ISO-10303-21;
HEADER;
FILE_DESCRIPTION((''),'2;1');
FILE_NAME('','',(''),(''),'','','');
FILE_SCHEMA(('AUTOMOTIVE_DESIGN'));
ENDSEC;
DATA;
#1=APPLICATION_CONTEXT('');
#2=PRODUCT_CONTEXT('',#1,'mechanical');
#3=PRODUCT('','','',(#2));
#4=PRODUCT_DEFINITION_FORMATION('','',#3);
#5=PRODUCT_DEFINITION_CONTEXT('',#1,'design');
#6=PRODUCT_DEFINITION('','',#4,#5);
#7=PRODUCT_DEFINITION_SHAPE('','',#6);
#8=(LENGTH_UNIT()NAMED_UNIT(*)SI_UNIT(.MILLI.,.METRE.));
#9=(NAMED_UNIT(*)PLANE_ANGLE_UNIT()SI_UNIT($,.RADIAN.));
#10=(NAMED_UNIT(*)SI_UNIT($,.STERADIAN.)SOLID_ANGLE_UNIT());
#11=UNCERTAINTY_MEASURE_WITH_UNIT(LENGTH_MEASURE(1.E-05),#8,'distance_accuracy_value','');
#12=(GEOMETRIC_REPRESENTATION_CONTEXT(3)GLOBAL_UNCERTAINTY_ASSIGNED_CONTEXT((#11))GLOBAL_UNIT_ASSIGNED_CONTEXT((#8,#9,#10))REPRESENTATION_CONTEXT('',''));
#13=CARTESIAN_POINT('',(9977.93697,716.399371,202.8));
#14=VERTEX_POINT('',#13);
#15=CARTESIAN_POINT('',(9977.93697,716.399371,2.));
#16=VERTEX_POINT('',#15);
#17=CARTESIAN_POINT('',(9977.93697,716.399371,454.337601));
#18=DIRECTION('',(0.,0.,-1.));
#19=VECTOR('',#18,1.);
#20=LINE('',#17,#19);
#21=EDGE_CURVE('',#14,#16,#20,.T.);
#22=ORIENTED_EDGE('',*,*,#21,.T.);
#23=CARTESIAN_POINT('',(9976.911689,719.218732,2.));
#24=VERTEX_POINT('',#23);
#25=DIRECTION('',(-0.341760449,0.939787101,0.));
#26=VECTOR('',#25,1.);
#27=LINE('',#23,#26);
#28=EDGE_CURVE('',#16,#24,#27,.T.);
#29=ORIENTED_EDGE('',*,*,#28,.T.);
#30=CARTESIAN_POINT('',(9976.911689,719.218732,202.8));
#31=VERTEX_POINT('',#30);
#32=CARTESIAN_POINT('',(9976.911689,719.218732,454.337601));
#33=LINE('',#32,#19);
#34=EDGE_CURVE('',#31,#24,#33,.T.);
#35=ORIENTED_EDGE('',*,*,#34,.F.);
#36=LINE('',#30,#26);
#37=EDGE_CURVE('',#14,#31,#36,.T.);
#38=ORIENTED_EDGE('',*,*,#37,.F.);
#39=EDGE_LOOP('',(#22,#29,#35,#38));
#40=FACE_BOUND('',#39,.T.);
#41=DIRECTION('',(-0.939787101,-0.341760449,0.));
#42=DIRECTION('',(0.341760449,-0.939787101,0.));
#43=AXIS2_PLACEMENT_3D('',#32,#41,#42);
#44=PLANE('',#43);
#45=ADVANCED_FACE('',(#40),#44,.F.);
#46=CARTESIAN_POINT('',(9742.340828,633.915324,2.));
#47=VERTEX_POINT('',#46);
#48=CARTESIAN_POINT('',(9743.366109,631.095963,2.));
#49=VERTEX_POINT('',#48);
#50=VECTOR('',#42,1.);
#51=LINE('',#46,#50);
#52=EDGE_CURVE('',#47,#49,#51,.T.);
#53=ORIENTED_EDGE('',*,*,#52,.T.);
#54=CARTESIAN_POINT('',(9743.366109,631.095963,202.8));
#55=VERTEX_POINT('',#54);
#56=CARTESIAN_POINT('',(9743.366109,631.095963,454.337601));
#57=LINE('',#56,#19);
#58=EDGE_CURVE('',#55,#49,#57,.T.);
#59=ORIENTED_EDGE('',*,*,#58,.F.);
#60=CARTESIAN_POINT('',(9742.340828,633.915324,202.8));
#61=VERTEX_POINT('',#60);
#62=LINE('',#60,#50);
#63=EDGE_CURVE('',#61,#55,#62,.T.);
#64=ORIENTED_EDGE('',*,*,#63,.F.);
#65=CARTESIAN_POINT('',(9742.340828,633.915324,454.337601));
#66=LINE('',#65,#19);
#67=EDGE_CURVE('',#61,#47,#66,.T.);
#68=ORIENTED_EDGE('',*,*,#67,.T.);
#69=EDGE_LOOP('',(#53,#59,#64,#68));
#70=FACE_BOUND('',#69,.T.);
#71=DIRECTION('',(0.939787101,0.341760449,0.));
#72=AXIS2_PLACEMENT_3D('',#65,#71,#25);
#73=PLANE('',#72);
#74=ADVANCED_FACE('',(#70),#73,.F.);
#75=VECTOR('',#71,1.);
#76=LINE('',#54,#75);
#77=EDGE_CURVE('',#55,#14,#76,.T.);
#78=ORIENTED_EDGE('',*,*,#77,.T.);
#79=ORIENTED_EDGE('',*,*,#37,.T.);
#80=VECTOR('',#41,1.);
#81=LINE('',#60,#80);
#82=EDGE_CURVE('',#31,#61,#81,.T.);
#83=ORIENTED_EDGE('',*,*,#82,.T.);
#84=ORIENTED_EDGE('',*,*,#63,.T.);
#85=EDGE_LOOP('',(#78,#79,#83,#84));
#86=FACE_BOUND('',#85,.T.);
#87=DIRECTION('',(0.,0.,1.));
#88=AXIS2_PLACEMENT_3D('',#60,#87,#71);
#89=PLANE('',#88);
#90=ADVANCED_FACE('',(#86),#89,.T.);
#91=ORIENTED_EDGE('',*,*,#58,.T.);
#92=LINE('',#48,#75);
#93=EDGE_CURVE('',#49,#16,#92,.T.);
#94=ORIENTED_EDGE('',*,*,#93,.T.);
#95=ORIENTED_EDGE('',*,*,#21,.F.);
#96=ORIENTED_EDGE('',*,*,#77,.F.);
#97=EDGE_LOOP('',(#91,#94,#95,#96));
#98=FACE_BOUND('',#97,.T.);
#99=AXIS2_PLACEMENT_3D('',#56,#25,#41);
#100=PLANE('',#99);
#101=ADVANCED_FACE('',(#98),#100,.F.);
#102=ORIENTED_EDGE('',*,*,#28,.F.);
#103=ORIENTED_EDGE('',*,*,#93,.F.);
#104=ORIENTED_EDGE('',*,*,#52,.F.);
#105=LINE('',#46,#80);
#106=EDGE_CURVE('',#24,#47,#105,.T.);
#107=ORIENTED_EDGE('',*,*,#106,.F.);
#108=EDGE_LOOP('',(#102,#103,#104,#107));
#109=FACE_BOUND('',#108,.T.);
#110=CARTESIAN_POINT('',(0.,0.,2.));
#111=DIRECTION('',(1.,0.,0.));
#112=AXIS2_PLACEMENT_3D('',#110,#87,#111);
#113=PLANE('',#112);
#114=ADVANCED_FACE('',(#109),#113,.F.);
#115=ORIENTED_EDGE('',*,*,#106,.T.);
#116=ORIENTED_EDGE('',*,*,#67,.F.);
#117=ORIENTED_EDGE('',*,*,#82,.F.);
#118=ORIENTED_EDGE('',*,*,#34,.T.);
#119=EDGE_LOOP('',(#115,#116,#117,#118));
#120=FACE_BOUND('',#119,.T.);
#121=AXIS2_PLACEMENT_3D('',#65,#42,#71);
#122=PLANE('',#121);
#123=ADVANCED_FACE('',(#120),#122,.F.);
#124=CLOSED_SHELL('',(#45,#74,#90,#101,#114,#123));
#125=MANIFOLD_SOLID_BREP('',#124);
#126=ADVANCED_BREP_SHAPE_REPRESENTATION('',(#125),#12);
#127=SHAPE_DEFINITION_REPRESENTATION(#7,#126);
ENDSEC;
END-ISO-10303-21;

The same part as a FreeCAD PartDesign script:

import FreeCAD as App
import Part
import Sketcher
from FreeCAD import Vector
Q = App.Units.Quantity

doc = App.newDocument("Part")
params = doc.addObject("Spreadsheet::Sheet", "Params")
for row, (alias, value) in enumerate([
    ("sketch1_length", "3 mm"),
    ("sketch1_length2", "249.6 mm"),
    ("pad1_length", "200.8 mm"),
], start=1):
    params.set(f"A{row}", alias)
    params.set(f"B{row}", "=" + value)
    params.setAlias(f"B{row}", alias)

body = doc.addObject("PartDesign::Body", "Body")

sketch1 = body.newObject("Sketcher::SketchObject", "Sketch")
sketch1.AttachmentSupport = (doc.getObject("XY_Plane"), [""])
sketch1.MapMode = "FlatFace"
sketch1.AttachmentOffset = App.Placement(Vector(0, 0, 2), App.Rotation())
sketch1.addGeometry([
    Part.LineSegment(Vector(9976.911689, 719.218732, 0), Vector(9742.340828, 633.915324, 0)),
    Part.LineSegment(Vector(9742.340828, 633.915324, 0), Vector(9743.366109, 631.095963, 0)),
    Part.LineSegment(Vector(9743.366109, 631.095963, 0), Vector(9977.93697, 716.399371, 0)),
    Part.LineSegment(Vector(9977.93697, 716.399371, 0), Vector(9976.911689, 719.218732, 0)),
], False)
sketch1.addConstraint([
    Sketcher.Constraint("Coincident", 0, 2, 1, 1),
    Sketcher.Constraint("Coincident", 1, 2, 2, 1),
    Sketcher.Constraint("Coincident", 2, 2, 3, 1),
    Sketcher.Constraint("Coincident", 3, 2, 0, 1),
    Sketcher.Constraint("Perpendicular", 0, 1),
    Sketcher.Constraint("Perpendicular", 1, 2),
    Sketcher.Constraint("Perpendicular", 2, 3),
    Sketcher.Constraint("Distance", 1, Q("3 mm")),
    Sketcher.Constraint("Distance", 0, Q("249.6 mm")),
    Sketcher.Constraint("DistanceX", -1, 1, 0, 2, Q("9742.340828 mm")),
    Sketcher.Constraint("DistanceX", -1, 1, 1, 2, Q("9743.366109 mm")),
    Sketcher.Constraint("DistanceY", -1, 1, 2, 2, Q("716.399371 mm")),
])
sketch1.setExpression("Constraints[7]", "Params.sketch1_length")
sketch1.setExpression("Constraints[8]", "Params.sketch1_length2")
pad1 = body.newObject("PartDesign::Pad", "Pad")
pad1.Profile = sketch1
pad1.setExpression("Length", "Params.pad1_length")

doc.recompute()
